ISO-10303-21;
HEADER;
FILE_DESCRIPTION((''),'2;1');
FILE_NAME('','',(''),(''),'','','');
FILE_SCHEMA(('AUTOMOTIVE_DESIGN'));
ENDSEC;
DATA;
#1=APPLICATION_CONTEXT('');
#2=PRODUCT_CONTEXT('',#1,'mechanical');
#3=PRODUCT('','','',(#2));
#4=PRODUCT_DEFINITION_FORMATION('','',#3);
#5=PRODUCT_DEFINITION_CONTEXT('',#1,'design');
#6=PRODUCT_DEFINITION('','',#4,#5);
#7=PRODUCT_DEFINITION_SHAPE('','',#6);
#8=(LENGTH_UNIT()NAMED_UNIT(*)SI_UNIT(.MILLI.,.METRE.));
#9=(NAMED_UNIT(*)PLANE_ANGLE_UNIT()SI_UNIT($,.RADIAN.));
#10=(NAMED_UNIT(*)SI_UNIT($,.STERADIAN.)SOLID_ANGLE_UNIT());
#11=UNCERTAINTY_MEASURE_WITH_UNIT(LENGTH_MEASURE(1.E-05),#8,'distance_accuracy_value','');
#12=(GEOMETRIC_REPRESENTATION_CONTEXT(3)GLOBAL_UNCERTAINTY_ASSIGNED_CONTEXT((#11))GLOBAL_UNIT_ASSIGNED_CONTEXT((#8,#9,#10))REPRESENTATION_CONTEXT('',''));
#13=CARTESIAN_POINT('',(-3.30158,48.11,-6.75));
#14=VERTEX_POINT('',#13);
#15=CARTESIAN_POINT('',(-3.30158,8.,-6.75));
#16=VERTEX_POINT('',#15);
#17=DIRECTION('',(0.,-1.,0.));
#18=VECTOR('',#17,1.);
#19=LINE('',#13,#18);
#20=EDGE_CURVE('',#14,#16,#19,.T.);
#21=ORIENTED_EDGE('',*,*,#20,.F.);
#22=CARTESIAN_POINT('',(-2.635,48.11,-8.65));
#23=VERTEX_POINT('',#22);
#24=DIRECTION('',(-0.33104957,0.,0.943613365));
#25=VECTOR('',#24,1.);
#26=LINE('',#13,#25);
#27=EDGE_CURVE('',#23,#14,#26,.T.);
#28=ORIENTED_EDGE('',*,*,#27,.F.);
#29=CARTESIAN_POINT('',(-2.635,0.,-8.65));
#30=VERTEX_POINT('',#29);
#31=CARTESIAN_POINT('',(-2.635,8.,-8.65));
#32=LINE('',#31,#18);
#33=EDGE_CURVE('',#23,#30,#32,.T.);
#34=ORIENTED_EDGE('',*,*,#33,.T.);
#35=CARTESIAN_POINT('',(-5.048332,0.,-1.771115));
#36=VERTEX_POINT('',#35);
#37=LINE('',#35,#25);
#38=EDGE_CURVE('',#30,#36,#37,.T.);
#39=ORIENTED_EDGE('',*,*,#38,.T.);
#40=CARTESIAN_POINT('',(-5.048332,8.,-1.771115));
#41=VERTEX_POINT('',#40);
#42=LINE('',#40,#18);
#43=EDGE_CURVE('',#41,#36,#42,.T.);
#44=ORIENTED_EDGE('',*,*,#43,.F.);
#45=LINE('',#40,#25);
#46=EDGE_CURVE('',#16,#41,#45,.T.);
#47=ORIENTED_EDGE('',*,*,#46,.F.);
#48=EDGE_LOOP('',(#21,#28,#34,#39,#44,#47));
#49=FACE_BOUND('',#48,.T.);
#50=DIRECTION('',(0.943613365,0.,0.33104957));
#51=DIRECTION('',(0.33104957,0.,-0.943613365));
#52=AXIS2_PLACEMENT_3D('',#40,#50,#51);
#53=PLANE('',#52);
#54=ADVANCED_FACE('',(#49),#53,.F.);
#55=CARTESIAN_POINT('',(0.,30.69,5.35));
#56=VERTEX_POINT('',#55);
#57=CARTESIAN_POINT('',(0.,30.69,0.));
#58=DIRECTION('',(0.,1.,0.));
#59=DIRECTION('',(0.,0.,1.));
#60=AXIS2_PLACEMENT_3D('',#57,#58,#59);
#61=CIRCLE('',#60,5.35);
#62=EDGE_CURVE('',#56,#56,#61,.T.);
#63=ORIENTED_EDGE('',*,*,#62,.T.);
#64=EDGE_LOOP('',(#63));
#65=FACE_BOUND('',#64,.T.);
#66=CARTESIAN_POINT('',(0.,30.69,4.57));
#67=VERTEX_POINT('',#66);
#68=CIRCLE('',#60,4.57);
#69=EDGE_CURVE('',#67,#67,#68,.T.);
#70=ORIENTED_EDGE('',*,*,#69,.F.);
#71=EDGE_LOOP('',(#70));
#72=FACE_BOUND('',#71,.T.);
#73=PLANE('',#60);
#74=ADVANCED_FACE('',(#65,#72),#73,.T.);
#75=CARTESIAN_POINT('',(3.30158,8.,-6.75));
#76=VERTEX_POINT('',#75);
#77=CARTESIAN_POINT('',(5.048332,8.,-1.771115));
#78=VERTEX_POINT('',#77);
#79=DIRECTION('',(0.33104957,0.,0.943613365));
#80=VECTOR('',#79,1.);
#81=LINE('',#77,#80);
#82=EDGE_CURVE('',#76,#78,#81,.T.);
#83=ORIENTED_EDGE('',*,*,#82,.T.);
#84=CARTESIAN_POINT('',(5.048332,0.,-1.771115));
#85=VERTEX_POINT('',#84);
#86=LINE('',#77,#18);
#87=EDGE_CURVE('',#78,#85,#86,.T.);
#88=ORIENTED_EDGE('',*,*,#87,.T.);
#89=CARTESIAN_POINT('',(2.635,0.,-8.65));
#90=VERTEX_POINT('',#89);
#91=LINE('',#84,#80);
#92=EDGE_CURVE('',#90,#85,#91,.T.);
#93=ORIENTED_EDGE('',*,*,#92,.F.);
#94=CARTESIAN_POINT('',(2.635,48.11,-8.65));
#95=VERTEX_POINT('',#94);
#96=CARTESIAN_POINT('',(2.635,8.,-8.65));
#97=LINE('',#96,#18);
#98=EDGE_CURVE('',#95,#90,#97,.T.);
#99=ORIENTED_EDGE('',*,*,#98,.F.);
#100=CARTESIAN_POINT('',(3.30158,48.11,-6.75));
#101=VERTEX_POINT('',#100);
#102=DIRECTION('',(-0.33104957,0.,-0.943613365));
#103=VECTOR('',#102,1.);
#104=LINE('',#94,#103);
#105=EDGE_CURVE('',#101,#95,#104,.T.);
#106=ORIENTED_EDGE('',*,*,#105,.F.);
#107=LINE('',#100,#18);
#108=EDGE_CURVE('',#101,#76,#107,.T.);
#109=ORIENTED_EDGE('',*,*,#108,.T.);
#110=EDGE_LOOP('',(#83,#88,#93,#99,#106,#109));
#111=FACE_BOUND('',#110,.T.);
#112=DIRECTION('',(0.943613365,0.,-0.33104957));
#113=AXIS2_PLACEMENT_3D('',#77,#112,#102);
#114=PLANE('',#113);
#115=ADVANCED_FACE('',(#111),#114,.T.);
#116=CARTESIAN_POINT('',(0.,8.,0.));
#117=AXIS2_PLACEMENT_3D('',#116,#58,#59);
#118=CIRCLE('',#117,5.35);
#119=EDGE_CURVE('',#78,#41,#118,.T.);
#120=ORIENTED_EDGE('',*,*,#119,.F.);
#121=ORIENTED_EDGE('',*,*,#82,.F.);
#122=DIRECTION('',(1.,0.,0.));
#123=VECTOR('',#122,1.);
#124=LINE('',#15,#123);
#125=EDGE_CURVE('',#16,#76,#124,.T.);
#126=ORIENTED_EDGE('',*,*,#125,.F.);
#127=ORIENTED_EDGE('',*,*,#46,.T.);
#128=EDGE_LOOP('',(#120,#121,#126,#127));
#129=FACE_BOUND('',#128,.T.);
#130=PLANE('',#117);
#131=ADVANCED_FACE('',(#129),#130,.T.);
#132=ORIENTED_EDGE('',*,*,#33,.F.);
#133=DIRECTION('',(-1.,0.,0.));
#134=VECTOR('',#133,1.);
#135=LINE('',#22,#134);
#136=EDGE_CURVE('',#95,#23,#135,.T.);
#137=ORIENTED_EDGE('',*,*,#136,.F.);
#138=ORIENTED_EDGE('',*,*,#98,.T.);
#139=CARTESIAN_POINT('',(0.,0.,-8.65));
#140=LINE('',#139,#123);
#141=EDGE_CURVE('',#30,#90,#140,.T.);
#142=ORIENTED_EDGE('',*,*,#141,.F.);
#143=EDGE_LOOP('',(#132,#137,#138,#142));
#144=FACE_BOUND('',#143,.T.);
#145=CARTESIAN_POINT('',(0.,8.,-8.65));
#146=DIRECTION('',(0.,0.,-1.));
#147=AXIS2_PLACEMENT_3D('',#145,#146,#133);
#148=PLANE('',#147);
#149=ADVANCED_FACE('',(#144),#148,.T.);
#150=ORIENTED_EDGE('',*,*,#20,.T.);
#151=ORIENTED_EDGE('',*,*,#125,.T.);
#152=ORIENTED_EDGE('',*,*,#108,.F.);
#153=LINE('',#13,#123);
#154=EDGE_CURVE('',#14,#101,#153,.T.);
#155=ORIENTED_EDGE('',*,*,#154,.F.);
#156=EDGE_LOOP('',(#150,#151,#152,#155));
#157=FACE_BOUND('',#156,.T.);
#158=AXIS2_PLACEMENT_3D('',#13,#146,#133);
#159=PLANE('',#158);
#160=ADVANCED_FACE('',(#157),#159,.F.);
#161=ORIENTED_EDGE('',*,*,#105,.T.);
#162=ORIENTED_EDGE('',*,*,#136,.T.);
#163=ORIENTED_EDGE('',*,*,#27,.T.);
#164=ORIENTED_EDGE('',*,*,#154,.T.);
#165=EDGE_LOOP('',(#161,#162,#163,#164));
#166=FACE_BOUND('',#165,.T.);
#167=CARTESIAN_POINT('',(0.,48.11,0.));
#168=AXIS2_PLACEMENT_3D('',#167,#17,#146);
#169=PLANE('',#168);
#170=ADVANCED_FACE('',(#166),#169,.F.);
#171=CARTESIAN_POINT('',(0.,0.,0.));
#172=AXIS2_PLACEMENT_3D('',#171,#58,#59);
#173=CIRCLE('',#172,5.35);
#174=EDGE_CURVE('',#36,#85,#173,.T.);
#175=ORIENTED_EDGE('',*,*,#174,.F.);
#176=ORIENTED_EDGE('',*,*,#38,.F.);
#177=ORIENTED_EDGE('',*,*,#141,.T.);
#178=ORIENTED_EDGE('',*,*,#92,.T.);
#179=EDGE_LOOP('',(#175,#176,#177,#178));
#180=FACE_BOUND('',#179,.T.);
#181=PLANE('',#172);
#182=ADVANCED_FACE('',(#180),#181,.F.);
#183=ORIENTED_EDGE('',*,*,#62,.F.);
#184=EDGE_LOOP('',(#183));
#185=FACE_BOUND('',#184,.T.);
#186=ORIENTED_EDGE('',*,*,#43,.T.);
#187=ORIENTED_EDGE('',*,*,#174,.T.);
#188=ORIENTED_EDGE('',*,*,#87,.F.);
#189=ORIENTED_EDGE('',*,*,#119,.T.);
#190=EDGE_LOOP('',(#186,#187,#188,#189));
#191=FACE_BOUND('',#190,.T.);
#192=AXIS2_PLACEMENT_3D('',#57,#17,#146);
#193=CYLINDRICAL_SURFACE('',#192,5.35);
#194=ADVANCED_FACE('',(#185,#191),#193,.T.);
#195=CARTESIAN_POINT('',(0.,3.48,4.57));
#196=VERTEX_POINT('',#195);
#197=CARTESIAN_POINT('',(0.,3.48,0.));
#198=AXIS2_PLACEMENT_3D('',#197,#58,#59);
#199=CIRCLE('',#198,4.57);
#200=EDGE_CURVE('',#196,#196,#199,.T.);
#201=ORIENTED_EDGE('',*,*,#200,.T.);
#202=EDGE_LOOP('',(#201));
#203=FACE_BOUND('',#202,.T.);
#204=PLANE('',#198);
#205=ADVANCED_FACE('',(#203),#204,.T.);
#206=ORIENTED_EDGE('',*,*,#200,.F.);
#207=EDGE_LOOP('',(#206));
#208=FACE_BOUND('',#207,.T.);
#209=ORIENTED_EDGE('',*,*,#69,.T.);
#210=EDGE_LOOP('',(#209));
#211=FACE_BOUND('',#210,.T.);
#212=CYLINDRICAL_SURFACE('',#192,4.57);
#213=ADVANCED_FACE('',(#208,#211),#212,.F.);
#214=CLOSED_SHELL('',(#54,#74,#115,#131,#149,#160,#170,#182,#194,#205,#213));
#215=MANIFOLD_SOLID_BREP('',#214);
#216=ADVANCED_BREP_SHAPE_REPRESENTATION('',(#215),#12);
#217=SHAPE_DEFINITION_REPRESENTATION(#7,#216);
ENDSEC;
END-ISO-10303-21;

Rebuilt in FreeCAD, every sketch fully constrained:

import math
import FreeCAD as App
import Part
import Sketcher
from FreeCAD import Vector

doc = App.newDocument("Part")
body = doc.addObject("PartDesign::Body", "Body")

# Sketch on XZ plane
sketch1 = body.newObject("Sketcher::SketchObject", "Sketch")
sketch1.AttachmentSupport = (doc.getObject("XZ_Plane"), [""])
sketch1.MapMode = "FlatFace"
sketch1.addGeometry(Part.ArcOfCircle(Part.Circle(Vector(0, 0, 0), Vector(0, 0, 1), 5.4), math.radians(90), math.radians(199)), False)
sketch1.addGeometry(Part.ArcOfCircle(Part.Circle(Vector(0, 0, 0), Vector(0, 0, 1), 5.4), math.radians(0), math.radians(90)), False)
sketch1.addGeometry(Part.ArcOfCircle(Part.Circle(Vector(0, 0, 0), Vector(0, 0, 1), 5.4), math.radians(-19.33), math.radians(0)), False)
sketch1.addGeometry(Part.ArcOfCircle(Part.Circle(Vector(0, 0, 0), Vector(0, 0, 1), 5.4), math.radians(-90), math.radians(-19)), False)
sketch1.addGeometry(Part.ArcOfCircle(Part.Circle(Vector(0, 0, 0), Vector(0, 0, 1), 5.4), math.radians(-161), math.radians(-90)), False)
sketch1.addGeometry(Part.ArcOfCircle(Part.Circle(Vector(0, 0, 0), Vector(0, 0, 1), 4.6), math.radians(90), math.radians(270)), False)
sketch1.addGeometry(Part.ArcOfCircle(Part.Circle(Vector(0, 0, 0), Vector(0, 0, 1), 4.6), math.radians(-90), math.radians(0)), False)
sketch1.addGeometry(Part.ArcOfCircle(Part.Circle(Vector(0, 0, 0), Vector(0, 0, 1), 4.6), math.radians(0), math.radians(90)), False)
sketch1.addConstraint(Sketcher.Constraint("Tangent", 0, 1, 1, 2))
sketch1.addConstraint(Sketcher.Constraint("Tangent", 1, 1, 2, 2))
sketch1.addConstraint(Sketcher.Constraint("Tangent", 2, 1, 3, 2))
sketch1.addConstraint(Sketcher.Constraint("Tangent", 3, 1, 4, 2))
sketch1.addConstraint(Sketcher.Constraint("Tangent", 4, 1, 0, 2))
sketch1.addConstraint(Sketcher.Constraint("Tangent", 5, 2, 6, 1))
sketch1.addConstraint(Sketcher.Constraint("Tangent", 6, 2, 7, 1))
sketch1.addConstraint(Sketcher.Constraint("Tangent", 7, 2, 5, 1))
sketch1.addConstraint(Sketcher.Constraint("Coincident", 0, 3, -1, 1))
sketch1.addConstraint(Sketcher.Constraint("Coincident", 2, 3, -1, 1))
sketch1.addConstraint(Sketcher.Constraint("Coincident", 5, 3, -1, 1))
sketch1.addConstraint(Sketcher.Constraint("PointOnObject", 0, 1, -2))
sketch1.addConstraint(Sketcher.Constraint("PointOnObject", 1, 1, -1))
sketch1.addConstraint(Sketcher.Constraint("PointOnObject", 3, 1, -2))
sketch1.addConstraint(Sketcher.Constraint("PointOnObject", 5, 2, -2))
sketch1.addConstraint(Sketcher.Constraint("PointOnObject", 6, 2, -1))
sketch1.addConstraint(Sketcher.Constraint("PointOnObject", 7, 2, -2))
sketch1.addConstraint(Sketcher.Constraint("Horizontal", 2, 1, 4, 1))
sketch1.addConstraint(Sketcher.Constraint("Radius", 0, 5.35))
sketch1.addConstraint(Sketcher.Constraint("Radius", 5, 4.57))
sketch1.addConstraint(Sketcher.Constraint("DistanceX", -1, 1, 2, 1, 5.048332))
pad1 = body.newObject("PartDesign::Pad", "Pad")
pad1.Profile = sketch1
pad1.Length = 30.69
pad1.Reversed = True

# Sketch on XZ plane
sketch2 = body.newObject("Sketcher::SketchObject", "Sketch001")
sketch2.AttachmentSupport = (doc.getObject("XZ_Plane"), [""])
sketch2.MapMode = "FlatFace"
sketch2.addGeometry(Part.ArcOfCircle(Part.Circle(Vector(0, 0, 0), Vector(0, 0, 1), 5), math.radians(-90), math.radians(-19)), False)
sketch2.addGeometry(Part.LineSegment(Vector(5, -2, 0), Vector(3, -9, 0)), False)
sketch2.addGeometry(Part.LineSegment(Vector(3, -9, 0), Vector(-3, -9, 0)), False)
sketch2.addGeometry(Part.LineSegment(Vector(-3, -9, 0), Vector(-5, -2, 0)), False)
sketch2.addGeometry(Part.ArcOfCircle(Part.Circle(Vector(0, 0, 0), Vector(0, 0, 1), 5), math.radians(-161), math.radians(-90)), False)
sketch2.addConstraint(Sketcher.Constraint("Tangent", 0, 2, 1, 1))
sketch2.addConstraint(Sketcher.Constraint("Coincident", 1, 2, 2, 1))
sketch2.addConstraint(Sketcher.Constraint("Coincident", 2, 2, 3, 1))
sketch2.addConstraint(Sketcher.Constraint("Tangent", 3, 2, 4, 1))
sketch2.addConstraint(Sketcher.Constraint("Tangent", 4, 2, 0, 1))
sketch2.addConstraint(Sketcher.Constraint("Horizontal", 2))
sketch2.addConstraint(Sketcher.Constraint("Coincident", 0, 3, -1, 1))
sketch2.addConstraint(Sketcher.Constraint("Equal", 0, 4))
sketch2.addConstraint(Sketcher.Constraint("PointOnObject", 4, 2, -2))
sketch2.addConstraint(Sketcher.Constraint("Horizontal", 0, 2, 3, 2))
sketch2.addConstraint(Sketcher.Constraint("Radius", 0, 5.35))
sketch2.addConstraint(Sketcher.Constraint("DistanceX", 2, 2, 2, 1, 5.27))
sketch2.addConstraint(Sketcher.Constraint("DistanceY", 2, 2, 4, 2, 3.3))
pad2 = body.newObject("PartDesign::Pad", "Pad001")
pad2.Profile = sketch2
pad2.Length = 8
pad2.Reversed = True

# Sketch on XZ plane
sketch3 = body.newObject("Sketcher::SketchObject", "Sketch002")
sketch3.AttachmentSupport = (doc.getObject("XZ_Plane"), [""])
sketch3.MapMode = "FlatFace"
sketch3.AttachmentOffset = App.Placement(Vector(0, 0, -8), App.Rotation())
sketch3.addGeometry(Part.LineSegment(Vector(-3.3, -6.8, 0), Vector(3.3, -6.8, 0)), False)
sketch3.addGeometry(Part.LineSegment(Vector(3.3, -6.8, 0), Vector(2.6, -8.7, 0)), False)
sketch3.addGeometry(Part.LineSegment(Vector(2.6, -8.7, 0), Vector(-2.6, -8.7, 0)), False)
sketch3.addGeometry(Part.LineSegment(Vector(-2.6, -8.7, 0), Vector(-3.3, -6.8, 0)), False)
sketch3.addConstraint(Sketcher.Constraint("Coincident", 0, 2, 1, 1))
sketch3.addConstraint(Sketcher.Constraint("Coincident", 1, 2, 2, 1))
sketch3.addConstraint(Sketcher.Constraint("Coincident", 2, 2, 3, 1))
sketch3.addConstraint(Sketcher.Constraint("Coincident", 3, 2, 0, 1))
sketch3.addConstraint(Sketcher.Constraint("Horizontal", 0))
sketch3.addConstraint(Sketcher.Constraint("Horizontal", 2))
sketch3.addConstraint(Sketcher.Constraint("Equal", 1, 3))
sketch3.addConstraint(Sketcher.Constraint("DistanceX", 2, 2, 2, 1, 5.27))
sketch3.addConstraint(Sketcher.Constraint("DistanceY", 1, 2, 0, 2, 1.9))
sketch3.addConstraint(Sketcher.Constraint("DistanceY", 0, 2, -1, 1, 6.75))
sketch3.addConstraint(Sketcher.Constraint("DistanceX", -1, 1, 1, 2, 2.635))
sketch3.addConstraint(Sketcher.Constraint("DistanceX", 0, 1, 0, 2, 6.603161))
pad3 = body.newObject("PartDesign::Pad", "Pad002")
pad3.Profile = sketch3
pad3.Length = 40.11
pad3.Reversed = True

# Sketch on XZ plane
sketch4 = body.newObject("Sketcher::SketchObject", "Sketch003")
sketch4.AttachmentSupport = (doc.getObject("XZ_Plane"), [""])
sketch4.MapMode = "FlatFace"
sketch4.addGeometry(Part.ArcOfCircle(Part.Circle(Vector(0, 0, 0), Vector(0, 0, 1), 4.6), math.radians(90), math.radians(270)), False)
sketch4.addGeometry(Part.ArcOfCircle(Part.Circle(Vector(0, 0, 0), Vector(0, 0, 1), 4.6), math.radians(0), math.radians(90)), False)
sketch4.addGeometry(Part.ArcOfCircle(Part.Circle(Vector(0, 0, 0), Vector(0, 0, 1), 4.6), math.radians(-90), math.radians(0)), False)
sketch4.addConstraint(Sketcher.Constraint("Tangent", 0, 1, 1, 2))
sketch4.addConstraint(Sketcher.Constraint("Tangent", 1, 1, 2, 2))
sketch4.addConstraint(Sketcher.Constraint("Tangent", 2, 1, 0, 2))
sketch4.addConstraint(Sketcher.Constraint("Coincident", 0, 3, -1, 1))
sketch4.addConstraint(Sketcher.Constraint("PointOnObject", 0, 1, -2))
sketch4.addConstraint(Sketcher.Constraint("PointOnObject", 1, 1, -1))
sketch4.addConstraint(Sketcher.Constraint("PointOnObject", 2, 1, -2))
sketch4.addConstraint(Sketcher.Constraint("Radius", 0, 4.57))
pad4 = body.newObject("PartDesign::Pad", "Pad003")
pad4.Profile = sketch4
pad4.Length = 3.48
pad4.Reversed = True

doc.recompute()
